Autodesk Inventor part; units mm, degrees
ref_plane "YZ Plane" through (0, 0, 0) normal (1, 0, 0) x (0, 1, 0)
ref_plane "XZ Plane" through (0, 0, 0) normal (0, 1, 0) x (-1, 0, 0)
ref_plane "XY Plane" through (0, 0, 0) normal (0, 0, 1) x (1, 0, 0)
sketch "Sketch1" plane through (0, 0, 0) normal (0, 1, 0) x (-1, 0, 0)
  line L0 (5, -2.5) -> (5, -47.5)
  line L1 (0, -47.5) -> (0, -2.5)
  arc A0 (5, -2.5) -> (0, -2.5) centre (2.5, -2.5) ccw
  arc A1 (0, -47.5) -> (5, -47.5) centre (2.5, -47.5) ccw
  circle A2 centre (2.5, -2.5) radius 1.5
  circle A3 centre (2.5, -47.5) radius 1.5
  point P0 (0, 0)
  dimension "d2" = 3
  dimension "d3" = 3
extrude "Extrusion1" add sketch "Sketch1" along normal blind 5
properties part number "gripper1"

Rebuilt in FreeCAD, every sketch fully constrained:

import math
import FreeCAD as App
import Part
import Sketcher
from FreeCAD import Vector
Q = App.Units.Quantity

doc = App.newDocument("Part")
body = doc.addObject("PartDesign::Body", "Body")

# Sketch on XZ plane
sketch1 = doc.addObject("Sketcher::SketchObject", "Sketch")
body.addObject(sketch1)
sketch1.AttachmentSupport = (doc.XZ_Plane, [""])
sketch1.MapMode = "FlatFace"
sketch1.addGeometry(Part.LineSegment(Vector(-5, -47.5, 0), Vector(-5, -2.5, 0)), False)
sketch1.addGeometry(Part.ArcOfCircle(Part.Circle(Vector(-2.5, -2.5, 0), Vector(0, 0, 1), 2.5), math.radians(0), math.radians(180)), False)
sketch1.addGeometry(Part.LineSegment(Vector(0, -2.5, 0), Vector(0, -47.5, 0)), False)
sketch1.addGeometry(Part.ArcOfCircle(Part.Circle(Vector(-2.5, -47.5, 0), Vector(0, 0, 1), 2.5), math.radians(180), math.radians(360)), False)
sketch1.addGeometry(Part.Circle(Vector(-2.5, -47.5, 0), Vector(0, 0, 1), 1.5), False)
sketch1.addGeometry(Part.Circle(Vector(-2.5, -2.5, 0), Vector(0, 0, 1), 1.5), False)
sketch1.addConstraint(Sketcher.Constraint("Tangent", 0, 2, 1, 2))
sketch1.addConstraint(Sketcher.Constraint("Tangent", 1, 1, 2, 1))
sketch1.addConstraint(Sketcher.Constraint("Tangent", 2, 2, 3, 2))
sketch1.addConstraint(Sketcher.Constraint("Tangent", 3, 1, 0, 1))
sketch1.addConstraint(Sketcher.Constraint("Vertical", 0))
sketch1.addConstraint(Sketcher.Constraint("Vertical", 2))
sketch1.addConstraint(Sketcher.Constraint("Coincident", 4, 3, 3, 3))
sketch1.addConstraint(Sketcher.Constraint("Coincident", 5, 3, 1, 3))
sketch1.addConstraint(Sketcher.Constraint("Equal", 4, 5))
sketch1.addConstraint(Sketcher.Constraint("PointOnObject", 1, 1, -2))
sketch1.addConstraint(Sketcher.Constraint("Diameter", 4, Q("3 mm")))
sketch1.addConstraint(Sketcher.Constraint("Radius", 1, Q("2.5 mm")))
sketch1.addConstraint(Sketcher.Constraint("DistanceY", 0, 1, 0, 2, Q("45 mm")))
sketch1.addConstraint(Sketcher.Constraint("DistanceY", 1, 3, -1, 1, Q("2.5 mm")))
pad1 = doc.addObject("PartDesign::Pad", "Pad")
body.addObject(pad1)
pad1.Profile = sketch1
pad1.Length = 5
pad1.Reversed = True

doc.recompute()
